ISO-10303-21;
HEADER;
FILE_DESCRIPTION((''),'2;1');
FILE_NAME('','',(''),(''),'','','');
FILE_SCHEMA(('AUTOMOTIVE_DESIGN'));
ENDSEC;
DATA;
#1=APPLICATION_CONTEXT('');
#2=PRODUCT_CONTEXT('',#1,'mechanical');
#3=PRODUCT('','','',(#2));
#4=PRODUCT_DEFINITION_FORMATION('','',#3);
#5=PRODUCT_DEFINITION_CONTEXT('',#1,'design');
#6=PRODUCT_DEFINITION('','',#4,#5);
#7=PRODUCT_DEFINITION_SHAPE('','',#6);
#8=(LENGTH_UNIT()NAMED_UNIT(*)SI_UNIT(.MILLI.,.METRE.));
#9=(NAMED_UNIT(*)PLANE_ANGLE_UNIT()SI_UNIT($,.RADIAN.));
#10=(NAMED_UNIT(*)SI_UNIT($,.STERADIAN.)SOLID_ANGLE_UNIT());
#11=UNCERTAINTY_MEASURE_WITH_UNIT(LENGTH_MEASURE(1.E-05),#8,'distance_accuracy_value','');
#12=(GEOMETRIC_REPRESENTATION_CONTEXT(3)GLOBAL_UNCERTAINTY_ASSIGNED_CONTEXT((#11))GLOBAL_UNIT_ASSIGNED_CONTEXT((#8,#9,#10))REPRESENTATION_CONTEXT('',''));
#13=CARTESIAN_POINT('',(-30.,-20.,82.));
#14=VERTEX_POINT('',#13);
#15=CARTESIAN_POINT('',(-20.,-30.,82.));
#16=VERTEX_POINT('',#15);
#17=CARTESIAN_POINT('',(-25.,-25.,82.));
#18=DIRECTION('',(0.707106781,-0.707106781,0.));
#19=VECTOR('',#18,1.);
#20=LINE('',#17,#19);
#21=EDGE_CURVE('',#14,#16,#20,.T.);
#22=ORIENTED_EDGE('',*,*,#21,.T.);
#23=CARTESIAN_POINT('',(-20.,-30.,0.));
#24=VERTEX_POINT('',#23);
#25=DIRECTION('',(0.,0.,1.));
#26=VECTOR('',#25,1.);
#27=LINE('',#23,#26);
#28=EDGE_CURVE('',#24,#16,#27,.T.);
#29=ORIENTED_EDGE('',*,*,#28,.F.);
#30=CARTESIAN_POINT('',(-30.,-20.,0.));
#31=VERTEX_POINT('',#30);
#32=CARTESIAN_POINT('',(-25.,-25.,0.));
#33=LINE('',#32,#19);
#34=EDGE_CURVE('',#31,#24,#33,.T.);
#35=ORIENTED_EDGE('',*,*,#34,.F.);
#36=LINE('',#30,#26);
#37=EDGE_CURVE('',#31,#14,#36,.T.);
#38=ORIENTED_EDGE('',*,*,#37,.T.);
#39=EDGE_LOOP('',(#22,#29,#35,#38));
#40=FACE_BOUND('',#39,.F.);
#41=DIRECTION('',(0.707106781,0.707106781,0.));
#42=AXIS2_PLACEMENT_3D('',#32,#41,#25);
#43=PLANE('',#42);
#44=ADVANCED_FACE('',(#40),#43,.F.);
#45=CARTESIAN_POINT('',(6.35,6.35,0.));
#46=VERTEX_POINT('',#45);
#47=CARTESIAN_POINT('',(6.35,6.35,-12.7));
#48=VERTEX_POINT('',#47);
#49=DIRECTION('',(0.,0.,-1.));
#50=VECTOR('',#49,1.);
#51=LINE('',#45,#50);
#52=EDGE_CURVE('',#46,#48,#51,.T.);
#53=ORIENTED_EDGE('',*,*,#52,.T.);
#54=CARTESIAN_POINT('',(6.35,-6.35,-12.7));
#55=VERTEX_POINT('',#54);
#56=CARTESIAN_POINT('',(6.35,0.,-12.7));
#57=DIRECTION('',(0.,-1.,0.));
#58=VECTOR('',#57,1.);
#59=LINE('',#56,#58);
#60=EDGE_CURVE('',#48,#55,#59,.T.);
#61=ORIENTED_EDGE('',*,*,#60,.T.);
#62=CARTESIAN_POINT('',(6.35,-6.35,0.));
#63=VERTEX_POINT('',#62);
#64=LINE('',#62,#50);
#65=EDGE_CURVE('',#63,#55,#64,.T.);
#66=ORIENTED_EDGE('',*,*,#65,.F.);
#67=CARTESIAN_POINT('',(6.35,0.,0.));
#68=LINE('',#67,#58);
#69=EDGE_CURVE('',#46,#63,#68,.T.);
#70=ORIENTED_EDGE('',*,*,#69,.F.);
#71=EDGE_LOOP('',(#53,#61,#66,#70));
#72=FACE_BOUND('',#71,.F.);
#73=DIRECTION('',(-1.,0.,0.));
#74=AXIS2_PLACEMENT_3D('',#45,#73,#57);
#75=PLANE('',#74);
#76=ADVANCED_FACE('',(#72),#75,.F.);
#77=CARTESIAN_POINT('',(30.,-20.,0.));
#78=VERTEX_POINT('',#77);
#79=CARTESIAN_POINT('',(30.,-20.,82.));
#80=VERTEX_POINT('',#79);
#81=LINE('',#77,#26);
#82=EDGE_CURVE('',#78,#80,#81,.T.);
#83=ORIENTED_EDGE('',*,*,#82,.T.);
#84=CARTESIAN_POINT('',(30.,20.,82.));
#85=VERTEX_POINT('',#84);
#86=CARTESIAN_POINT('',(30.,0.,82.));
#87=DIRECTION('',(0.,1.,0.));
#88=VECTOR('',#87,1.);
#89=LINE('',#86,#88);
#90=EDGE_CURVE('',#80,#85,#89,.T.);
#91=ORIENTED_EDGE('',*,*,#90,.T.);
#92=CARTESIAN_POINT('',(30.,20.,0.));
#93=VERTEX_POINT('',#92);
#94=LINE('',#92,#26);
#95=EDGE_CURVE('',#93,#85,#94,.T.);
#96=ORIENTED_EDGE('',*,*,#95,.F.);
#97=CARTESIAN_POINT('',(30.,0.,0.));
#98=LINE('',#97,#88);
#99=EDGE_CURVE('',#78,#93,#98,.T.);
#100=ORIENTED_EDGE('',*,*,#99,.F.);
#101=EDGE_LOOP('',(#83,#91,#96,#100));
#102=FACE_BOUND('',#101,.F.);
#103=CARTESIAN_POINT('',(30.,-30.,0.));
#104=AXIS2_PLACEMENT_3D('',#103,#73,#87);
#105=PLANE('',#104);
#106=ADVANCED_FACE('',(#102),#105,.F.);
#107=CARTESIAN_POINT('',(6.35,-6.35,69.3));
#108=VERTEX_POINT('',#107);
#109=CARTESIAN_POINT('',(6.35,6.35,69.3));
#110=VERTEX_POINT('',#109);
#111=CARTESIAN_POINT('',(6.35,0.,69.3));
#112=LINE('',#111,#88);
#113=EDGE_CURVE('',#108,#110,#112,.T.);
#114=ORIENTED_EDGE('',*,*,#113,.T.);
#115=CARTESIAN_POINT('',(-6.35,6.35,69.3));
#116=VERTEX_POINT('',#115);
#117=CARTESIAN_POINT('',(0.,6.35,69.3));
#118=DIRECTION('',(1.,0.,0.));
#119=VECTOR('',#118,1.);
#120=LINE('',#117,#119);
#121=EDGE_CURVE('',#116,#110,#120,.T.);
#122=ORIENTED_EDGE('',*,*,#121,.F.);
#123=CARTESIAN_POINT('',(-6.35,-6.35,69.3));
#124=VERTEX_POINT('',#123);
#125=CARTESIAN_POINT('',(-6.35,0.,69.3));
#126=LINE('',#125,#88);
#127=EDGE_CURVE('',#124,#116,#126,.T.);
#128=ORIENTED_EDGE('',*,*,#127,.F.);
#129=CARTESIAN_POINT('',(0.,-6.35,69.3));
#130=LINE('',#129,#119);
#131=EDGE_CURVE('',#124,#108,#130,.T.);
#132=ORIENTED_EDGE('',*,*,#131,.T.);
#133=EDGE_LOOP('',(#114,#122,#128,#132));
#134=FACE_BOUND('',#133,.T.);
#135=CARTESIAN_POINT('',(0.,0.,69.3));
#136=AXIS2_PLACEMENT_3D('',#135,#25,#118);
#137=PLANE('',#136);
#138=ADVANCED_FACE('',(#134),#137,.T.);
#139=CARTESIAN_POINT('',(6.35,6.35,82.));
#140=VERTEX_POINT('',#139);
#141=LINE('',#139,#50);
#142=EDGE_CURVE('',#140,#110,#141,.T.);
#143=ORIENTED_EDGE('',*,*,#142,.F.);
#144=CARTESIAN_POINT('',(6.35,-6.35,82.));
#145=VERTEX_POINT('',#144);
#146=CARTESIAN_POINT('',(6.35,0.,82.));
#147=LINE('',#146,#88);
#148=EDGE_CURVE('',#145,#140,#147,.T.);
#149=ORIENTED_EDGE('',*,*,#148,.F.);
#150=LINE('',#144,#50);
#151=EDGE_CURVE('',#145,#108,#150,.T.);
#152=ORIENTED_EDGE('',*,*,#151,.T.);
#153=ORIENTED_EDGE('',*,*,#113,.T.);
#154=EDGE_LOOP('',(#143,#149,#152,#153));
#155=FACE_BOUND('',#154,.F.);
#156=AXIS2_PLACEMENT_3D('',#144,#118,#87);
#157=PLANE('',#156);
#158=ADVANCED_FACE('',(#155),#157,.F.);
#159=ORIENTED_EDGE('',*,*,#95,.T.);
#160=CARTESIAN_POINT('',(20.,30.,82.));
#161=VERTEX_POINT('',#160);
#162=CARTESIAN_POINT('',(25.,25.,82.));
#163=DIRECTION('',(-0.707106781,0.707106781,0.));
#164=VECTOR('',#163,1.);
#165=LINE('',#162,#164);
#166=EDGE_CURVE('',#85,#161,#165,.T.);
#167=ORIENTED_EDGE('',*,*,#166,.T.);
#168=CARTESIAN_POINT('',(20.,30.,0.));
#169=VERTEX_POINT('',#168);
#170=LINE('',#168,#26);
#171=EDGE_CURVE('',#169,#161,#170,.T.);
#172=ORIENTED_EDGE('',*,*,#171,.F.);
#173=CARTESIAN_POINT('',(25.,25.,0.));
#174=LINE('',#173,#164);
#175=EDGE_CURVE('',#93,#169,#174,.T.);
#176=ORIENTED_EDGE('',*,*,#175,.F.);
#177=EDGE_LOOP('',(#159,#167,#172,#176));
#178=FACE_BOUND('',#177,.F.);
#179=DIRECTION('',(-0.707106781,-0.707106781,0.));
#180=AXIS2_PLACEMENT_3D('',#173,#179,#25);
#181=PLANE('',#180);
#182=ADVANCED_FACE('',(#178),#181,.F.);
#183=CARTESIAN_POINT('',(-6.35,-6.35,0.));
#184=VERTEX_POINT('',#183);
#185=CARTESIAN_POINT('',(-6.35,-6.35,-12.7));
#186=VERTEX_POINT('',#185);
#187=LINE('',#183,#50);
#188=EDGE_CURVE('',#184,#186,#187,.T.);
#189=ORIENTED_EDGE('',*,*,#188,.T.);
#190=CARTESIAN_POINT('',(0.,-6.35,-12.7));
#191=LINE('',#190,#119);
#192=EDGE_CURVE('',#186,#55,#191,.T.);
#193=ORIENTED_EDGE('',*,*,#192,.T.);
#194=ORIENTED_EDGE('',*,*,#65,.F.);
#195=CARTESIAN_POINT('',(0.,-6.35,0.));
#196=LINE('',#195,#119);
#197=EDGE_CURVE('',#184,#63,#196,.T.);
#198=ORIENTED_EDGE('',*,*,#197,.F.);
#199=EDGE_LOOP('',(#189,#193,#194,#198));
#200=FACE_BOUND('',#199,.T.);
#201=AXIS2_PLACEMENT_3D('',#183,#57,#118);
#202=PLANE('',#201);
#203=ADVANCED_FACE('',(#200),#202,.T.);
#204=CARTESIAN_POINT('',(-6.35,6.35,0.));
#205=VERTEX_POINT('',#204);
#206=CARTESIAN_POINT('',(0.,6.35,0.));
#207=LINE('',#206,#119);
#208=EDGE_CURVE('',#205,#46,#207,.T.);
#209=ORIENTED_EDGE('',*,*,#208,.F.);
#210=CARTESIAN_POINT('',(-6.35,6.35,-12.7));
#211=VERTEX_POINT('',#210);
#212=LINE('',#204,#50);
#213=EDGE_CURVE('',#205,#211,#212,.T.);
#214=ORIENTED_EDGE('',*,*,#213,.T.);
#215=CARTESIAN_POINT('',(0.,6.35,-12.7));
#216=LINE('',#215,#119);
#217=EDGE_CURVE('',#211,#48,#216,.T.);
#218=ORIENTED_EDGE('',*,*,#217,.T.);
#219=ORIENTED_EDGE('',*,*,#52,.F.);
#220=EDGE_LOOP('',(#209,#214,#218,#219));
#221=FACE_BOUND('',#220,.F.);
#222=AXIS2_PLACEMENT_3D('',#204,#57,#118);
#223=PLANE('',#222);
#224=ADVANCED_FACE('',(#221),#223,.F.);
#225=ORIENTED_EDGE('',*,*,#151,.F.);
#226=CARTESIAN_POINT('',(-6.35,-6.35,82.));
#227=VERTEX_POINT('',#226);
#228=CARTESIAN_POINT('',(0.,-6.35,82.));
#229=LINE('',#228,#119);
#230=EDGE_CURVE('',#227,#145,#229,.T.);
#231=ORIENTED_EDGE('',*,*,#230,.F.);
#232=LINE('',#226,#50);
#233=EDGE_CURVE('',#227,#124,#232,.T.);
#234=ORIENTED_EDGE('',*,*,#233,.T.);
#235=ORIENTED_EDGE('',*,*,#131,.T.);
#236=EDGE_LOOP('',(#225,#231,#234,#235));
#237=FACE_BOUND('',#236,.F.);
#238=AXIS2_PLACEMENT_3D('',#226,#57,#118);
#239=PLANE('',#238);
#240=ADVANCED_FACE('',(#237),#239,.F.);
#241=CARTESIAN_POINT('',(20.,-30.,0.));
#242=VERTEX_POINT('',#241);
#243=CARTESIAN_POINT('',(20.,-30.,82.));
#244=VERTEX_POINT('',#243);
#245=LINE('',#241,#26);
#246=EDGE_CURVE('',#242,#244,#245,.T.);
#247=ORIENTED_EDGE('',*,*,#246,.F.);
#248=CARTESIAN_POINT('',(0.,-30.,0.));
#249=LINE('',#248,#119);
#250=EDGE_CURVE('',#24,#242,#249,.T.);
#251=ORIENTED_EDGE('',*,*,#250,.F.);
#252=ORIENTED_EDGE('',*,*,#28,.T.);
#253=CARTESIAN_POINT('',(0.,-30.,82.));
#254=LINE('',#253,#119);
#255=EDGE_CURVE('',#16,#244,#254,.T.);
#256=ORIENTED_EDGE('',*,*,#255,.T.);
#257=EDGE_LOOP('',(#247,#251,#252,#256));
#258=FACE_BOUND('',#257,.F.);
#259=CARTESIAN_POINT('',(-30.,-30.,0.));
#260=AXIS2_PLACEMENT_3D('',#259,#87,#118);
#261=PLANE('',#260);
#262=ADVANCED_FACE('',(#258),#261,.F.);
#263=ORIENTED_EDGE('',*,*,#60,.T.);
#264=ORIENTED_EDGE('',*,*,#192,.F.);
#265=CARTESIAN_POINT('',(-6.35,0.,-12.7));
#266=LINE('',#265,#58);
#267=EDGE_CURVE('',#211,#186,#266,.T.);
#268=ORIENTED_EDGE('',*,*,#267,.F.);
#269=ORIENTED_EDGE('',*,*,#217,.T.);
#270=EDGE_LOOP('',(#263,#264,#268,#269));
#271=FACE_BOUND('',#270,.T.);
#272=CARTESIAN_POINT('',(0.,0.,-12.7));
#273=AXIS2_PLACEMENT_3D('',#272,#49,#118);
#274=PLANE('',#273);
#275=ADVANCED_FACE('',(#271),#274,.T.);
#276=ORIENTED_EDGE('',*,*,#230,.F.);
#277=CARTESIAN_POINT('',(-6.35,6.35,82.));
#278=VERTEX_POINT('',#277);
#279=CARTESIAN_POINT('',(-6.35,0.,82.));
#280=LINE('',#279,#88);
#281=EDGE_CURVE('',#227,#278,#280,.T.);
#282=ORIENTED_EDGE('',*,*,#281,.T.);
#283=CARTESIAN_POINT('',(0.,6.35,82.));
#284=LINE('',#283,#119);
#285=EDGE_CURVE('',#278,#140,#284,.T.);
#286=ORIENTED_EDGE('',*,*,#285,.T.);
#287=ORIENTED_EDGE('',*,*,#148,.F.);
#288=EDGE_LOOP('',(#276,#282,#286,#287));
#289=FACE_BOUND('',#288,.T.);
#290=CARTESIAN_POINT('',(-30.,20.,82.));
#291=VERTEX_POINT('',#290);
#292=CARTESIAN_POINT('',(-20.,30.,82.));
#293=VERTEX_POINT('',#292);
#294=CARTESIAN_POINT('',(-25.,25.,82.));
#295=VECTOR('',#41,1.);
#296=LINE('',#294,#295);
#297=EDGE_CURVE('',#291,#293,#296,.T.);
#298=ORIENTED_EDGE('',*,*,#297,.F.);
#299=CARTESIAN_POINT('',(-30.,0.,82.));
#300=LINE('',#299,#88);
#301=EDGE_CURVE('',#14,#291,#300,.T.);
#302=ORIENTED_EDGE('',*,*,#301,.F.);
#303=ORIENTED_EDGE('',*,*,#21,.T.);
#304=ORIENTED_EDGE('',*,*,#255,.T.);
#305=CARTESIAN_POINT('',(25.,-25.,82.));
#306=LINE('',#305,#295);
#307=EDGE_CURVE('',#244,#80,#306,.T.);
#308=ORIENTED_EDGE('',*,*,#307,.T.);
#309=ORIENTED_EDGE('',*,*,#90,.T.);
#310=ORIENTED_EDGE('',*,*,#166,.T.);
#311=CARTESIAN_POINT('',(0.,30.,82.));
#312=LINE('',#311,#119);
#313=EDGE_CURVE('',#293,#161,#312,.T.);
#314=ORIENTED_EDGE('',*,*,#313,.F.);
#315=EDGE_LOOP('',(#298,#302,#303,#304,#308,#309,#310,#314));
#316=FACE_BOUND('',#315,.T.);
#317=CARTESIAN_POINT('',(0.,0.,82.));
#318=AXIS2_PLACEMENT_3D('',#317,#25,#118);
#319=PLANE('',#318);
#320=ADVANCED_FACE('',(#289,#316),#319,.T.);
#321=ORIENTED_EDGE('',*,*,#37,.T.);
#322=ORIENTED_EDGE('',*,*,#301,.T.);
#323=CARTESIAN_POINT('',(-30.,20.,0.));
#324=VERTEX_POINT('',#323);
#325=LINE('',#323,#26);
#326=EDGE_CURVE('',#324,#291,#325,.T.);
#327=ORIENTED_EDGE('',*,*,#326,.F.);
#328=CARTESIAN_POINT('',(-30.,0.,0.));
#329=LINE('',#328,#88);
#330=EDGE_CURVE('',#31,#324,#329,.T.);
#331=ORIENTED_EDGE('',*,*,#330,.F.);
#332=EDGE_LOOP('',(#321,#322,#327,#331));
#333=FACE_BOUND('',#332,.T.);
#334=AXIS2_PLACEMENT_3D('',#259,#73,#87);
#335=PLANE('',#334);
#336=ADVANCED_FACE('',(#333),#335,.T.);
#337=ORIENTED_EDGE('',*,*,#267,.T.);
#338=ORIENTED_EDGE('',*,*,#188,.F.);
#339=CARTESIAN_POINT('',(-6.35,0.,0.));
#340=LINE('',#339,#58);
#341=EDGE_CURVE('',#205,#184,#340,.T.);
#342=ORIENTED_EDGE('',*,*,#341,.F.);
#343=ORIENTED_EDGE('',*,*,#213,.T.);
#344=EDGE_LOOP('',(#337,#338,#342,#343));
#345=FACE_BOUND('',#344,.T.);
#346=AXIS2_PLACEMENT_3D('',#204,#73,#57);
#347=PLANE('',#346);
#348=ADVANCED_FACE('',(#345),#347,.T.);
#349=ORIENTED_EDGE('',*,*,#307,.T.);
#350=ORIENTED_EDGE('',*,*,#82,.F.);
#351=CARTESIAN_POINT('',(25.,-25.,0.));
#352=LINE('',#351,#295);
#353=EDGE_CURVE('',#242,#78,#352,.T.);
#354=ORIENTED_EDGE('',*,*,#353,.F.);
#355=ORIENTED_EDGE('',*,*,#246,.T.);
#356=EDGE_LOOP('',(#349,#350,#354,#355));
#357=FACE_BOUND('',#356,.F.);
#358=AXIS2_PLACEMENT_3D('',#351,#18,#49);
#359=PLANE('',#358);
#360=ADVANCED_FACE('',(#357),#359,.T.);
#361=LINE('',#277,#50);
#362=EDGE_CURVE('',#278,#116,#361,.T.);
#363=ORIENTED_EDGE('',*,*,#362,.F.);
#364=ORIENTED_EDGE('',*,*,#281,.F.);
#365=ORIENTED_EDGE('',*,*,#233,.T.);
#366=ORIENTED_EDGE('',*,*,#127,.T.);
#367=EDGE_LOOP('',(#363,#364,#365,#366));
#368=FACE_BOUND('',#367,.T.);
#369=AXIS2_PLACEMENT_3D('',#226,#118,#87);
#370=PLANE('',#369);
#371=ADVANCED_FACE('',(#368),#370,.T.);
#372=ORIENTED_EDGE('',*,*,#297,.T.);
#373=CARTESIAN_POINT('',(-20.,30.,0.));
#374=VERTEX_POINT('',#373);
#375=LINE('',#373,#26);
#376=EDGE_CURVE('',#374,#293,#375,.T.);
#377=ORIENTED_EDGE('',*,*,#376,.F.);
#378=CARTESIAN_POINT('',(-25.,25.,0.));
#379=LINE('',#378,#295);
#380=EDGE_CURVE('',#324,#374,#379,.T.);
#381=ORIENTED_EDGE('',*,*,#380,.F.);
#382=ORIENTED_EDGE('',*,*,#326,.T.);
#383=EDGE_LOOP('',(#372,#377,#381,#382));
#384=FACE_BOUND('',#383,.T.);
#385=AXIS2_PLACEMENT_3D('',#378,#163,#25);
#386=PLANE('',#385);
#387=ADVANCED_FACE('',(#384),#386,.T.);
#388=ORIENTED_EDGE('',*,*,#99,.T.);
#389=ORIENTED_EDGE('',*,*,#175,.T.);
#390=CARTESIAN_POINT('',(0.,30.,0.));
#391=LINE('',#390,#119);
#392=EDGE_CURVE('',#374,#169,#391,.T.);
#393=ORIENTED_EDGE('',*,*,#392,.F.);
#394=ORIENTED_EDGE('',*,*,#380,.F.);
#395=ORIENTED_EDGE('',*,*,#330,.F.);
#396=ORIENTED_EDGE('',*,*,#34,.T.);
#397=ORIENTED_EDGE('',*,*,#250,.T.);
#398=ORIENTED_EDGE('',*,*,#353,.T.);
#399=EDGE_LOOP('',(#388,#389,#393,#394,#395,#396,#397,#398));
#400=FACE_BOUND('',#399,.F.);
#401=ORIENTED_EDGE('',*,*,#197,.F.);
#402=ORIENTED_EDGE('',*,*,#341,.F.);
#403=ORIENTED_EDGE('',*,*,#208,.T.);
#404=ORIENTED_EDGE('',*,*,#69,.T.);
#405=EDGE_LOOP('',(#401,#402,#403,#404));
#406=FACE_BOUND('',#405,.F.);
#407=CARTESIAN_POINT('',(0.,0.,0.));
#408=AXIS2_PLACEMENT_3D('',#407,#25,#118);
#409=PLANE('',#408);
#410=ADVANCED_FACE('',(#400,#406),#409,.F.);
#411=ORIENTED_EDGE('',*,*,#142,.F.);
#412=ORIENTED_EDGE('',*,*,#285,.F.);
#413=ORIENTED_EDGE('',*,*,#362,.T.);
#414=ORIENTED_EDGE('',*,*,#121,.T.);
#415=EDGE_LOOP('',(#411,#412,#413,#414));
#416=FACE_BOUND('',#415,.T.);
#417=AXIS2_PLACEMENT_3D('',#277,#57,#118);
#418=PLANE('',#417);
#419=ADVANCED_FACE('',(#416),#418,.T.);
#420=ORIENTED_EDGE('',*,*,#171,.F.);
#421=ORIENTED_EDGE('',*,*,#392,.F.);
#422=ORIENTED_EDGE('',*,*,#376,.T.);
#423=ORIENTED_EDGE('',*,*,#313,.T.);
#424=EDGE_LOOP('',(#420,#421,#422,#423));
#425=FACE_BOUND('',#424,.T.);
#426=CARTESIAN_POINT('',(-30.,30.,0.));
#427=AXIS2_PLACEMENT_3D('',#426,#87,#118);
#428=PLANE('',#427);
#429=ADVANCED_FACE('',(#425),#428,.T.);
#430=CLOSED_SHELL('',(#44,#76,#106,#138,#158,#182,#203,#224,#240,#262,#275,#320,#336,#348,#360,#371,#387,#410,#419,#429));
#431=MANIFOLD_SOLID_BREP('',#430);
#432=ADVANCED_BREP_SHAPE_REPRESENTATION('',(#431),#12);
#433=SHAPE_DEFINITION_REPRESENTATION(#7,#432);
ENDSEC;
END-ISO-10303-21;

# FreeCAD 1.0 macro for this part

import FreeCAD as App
import Part
import Sketcher

V = App.Vector


def edges_at(feature, points):
    """Names of the edges that pass closest to the given points."""
    edges = feature.Shape.Edges
    near = lambda p: min(range(len(edges)), key=lambda i: edges[i].distToShape(Part.Vertex(*p))[0])
    return sorted({f"Edge{near(p) + 1}" for p in points})


def add_polygon(sketch, points):
    """Adds a closed chain of lines whose ends are joined by coincident constraints."""
    first, n = sketch.GeometryCount, len(points)
    for a, b in zip(points, points[1:] + points[:1]):
        sketch.addGeometry(Part.LineSegment(App.Vector(*a, 0), App.Vector(*b, 0)), False)
    for i in range(n):
        sketch.addConstraint(Sketcher.Constraint("Coincident", first + i, 2, first + (i + 1) % n, 1))

doc = App.newDocument("Part")
body = doc.addObject("PartDesign::Body", "Body")

# Sketch on XY plane
sketch1 = doc.addObject("Sketcher::SketchObject", "Sketch")
body.addObject(sketch1)
sketch1.AttachmentSupport = (doc.XY_Plane, [""])
sketch1.MapMode = "FlatFace"
add_polygon(sketch1, [(-30, 30), (-30, -30), (30, -30), (30, 30)])  # lines 0-3
sketch1.addConstraint(Sketcher.Constraint("Vertical", 0))
sketch1.addConstraint(Sketcher.Constraint("Horizontal", 1))
sketch1.addConstraint(Sketcher.Constraint("Vertical", 2))
sketch1.addConstraint(Sketcher.Constraint("Horizontal", 3))
sketch1.addConstraint(Sketcher.Constraint("Symmetric", 0, 2, 2, 2, -1, 1))
sketch1.addConstraint(Sketcher.Constraint("Equal", 3, 0))
sketch1.addConstraint(Sketcher.Constraint("DistanceX", 1, 1, 1, 2, 60.0))
pad1 = doc.addObject("PartDesign::Pad", "Pad")
body.addObject(pad1)
pad1.Profile = sketch1
pad1.Length = 82
doc.recompute()

chamfer = doc.addObject("PartDesign::Chamfer", "Chamfer")
body.addObject(chamfer)
chamfer.Base = (pad1, edges_at(pad1, [
    (30, -30, 41),
    (30, 30, 41),
    (-30, -30, 41),
    (-30, 30, 41),
]))
chamfer.Size = 10

# Sketch on XY plane
sketch2 = doc.addObject("Sketcher::SketchObject", "Sketch001")
body.addObject(sketch2)
sketch2.AttachmentSupport = (doc.XY_Plane, [""])
sketch2.MapMode = "FlatFace"
sketch2.AttachmentOffset = App.Placement(V(0, 0, 82), App.Rotation())
add_polygon(sketch2, [(-6, 6), (-6, -6), (6, -6), (6, 6)])  # lines 0-3
sketch2.addConstraint(Sketcher.Constraint("Vertical", 0))
sketch2.addConstraint(Sketcher.Constraint("Horizontal", 1))
sketch2.addConstraint(Sketcher.Constraint("Vertical", 2))
sketch2.addConstraint(Sketcher.Constraint("Horizontal", 3))
sketch2.addConstraint(Sketcher.Constraint("Symmetric", 0, 2, 2, 2, -1, 1))
sketch2.addConstraint(Sketcher.Constraint("Equal", 3, 0))
sketch2.addConstraint(Sketcher.Constraint("DistanceX", 1, 1, 1, 2, 12.7))
pocket1 = doc.addObject("PartDesign::Pocket", "Pocket")
body.addObject(pocket1)
pocket1.Profile = sketch2
pocket1.Length = 12.7

# Sketch on XY plane
sketch3 = doc.addObject("Sketcher::SketchObject", "Sketch002")
body.addObject(sketch3)
sketch3.AttachmentSupport = (doc.XY_Plane, [""])
sketch3.MapMode = "FlatFace"
add_polygon(sketch3, [(-6, -6), (-6, 6), (6, 6), (6, -6)])  # lines 0-3
sketch3.addConstraint(Sketcher.Constraint("Vertical", 0))
sketch3.addConstraint(Sketcher.Constraint("Horizontal", 1))
sketch3.addConstraint(Sketcher.Constraint("Vertical", 2))
sketch3.addConstraint(Sketcher.Constraint("Horizontal", 3))
sketch3.addConstraint(Sketcher.Constraint("Symmetric", 0, 2, 2, 2, -1, 1))
sketch3.addConstraint(Sketcher.Constraint("Equal", 3, 0))
sketch3.addConstraint(Sketcher.Constraint("DistanceX", 1, 1, 1, 2, 12.7))
pad2 = doc.addObject("PartDesign::Pad", "Pad001")
body.addObject(pad2)
pad2.Profile = sketch3
pad2.Length = 12.7
pad2.Reversed = True

doc.recompute()
